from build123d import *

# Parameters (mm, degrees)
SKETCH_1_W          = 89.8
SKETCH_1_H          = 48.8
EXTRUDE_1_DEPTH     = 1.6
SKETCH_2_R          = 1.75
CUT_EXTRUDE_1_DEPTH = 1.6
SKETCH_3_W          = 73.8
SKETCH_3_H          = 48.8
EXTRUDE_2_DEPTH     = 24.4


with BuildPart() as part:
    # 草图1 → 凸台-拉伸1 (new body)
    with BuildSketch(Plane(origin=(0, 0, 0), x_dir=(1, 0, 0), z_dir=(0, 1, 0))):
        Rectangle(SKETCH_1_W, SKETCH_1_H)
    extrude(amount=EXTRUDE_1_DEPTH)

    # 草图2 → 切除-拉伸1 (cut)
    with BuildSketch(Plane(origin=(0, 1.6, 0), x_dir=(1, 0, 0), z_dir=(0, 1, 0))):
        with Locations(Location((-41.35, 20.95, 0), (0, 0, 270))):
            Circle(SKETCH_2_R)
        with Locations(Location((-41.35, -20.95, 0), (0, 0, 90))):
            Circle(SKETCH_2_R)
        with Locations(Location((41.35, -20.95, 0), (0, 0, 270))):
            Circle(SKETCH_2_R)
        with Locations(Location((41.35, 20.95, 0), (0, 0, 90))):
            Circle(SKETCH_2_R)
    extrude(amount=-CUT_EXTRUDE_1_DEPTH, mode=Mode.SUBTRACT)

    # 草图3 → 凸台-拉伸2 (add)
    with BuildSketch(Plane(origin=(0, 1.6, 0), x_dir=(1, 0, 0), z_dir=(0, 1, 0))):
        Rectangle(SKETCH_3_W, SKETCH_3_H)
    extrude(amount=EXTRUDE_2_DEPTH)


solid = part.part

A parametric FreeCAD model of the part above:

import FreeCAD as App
import Part
import Sketcher
Q = App.Units.Quantity

doc = App.newDocument("Part")
params = doc.addObject("Spreadsheet::Sheet", "Params")
for row, (alias, value) in enumerate([
    ("sketch1_width", "89.8 mm"),
    ("sketch1_height", "48.8 mm"),
    ("pad1_length", "1.6 mm"),
    ("sketch2_diameter", "3.5 mm"),
    ("pocket1_length", "1.6 mm"),
    ("sketch3_width", "73.8 mm"),
    ("sketch3_height", "48.8 mm"),
    ("pad2_length", "24.4 mm"),
], start=1):
    params.set(f"A{row}", alias)
    params.set(f"B{row}", "=" + value)
    params.setAlias(f"B{row}", alias)

body = doc.addObject("PartDesign::Body", "Body")

# Sketch on XZ plane
sketch1 = body.newObject("Sketcher::SketchObject", "Sketch")
sketch1.AttachmentSupport = (doc.getObject("XZ_Plane"), [""])
sketch1.MapMode = "FlatFace"
sketch1.addGeometry([
    Part.LineSegment(App.Vector(-45, -24, 0), App.Vector(-45, 24, 0)),
    Part.LineSegment(App.Vector(-45, 24, 0), App.Vector(45, 24, 0)),
    Part.LineSegment(App.Vector(45, 24, 0), App.Vector(45, -24, 0)),
    Part.LineSegment(App.Vector(45, -24, 0), App.Vector(-45, -24, 0)),
], False)
sketch1.addConstraint([
    Sketcher.Constraint("Coincident", 0, 2, 1, 1),
    Sketcher.Constraint("Coincident", 1, 2, 2, 1),
    Sketcher.Constraint("Coincident", 2, 2, 3, 1),
    Sketcher.Constraint("Coincident", 3, 2, 0, 1),
    Sketcher.Constraint("Vertical", 0),
    Sketcher.Constraint("Horizontal", 1),
    Sketcher.Constraint("Vertical", 2),
    Sketcher.Constraint("Horizontal", 3),
    Sketcher.Constraint("Symmetric", 0, 2, 2, 2, -1, 1),
    Sketcher.Constraint("DistanceX", 1, 1, 1, 2, Q("89.8 mm")),
    Sketcher.Constraint("DistanceY", 0, 1, 0, 2, Q("48.8 mm")),
])
sketch1.setExpression("Constraints[9]", "Params.sketch1_width")
sketch1.setExpression("Constraints[10]", "Params.sketch1_height")
pad1 = body.newObject("PartDesign::Pad", "Pad")
pad1.Profile = sketch1
pad1.setExpression("Length", "Params.pad1_length")
pad1.Reversed = True

# Sketch on XZ plane
sketch2 = body.newObject("Sketcher::SketchObject", "Sketch001")
sketch2.AttachmentSupport = (doc.getObject("XZ_Plane"), [""])
sketch2.MapMode = "FlatFace"
sketch2.AttachmentOffset = App.Placement(App.Vector(0, 0, -1.6), App.Rotation())
sketch2.addGeometry([
    Part.Circle(App.Vector(-41.4, -20.9, 0), App.Vector(0, 0, 1), 1.8),
    Part.Circle(App.Vector(-41.4, 20.9, 0), App.Vector(0, 0, 1), 1.8),
    Part.Circle(App.Vector(41.4, 20.9, 0), App.Vector(0, 0, 1), 1.8),
    Part.Circle(App.Vector(41.4, -20.9, 0), App.Vector(0, 0, 1), 1.8),
], False)
sketch2.addConstraint([
    Sketcher.Constraint("Equal", 0, 1),
    Sketcher.Constraint("Equal", 1, 2),
    Sketcher.Constraint("Equal", 2, 3),
    Sketcher.Constraint("Symmetric", 0, 3, 2, 3, -1, 1),
    Sketcher.Constraint("Symmetric", 1, 3, 3, 3, -1, 1),
    Sketcher.Constraint("Symmetric", 1, 3, 2, 3, -2),
    Sketcher.Constraint("Diameter", 0, Q("3.5 mm")),
    Sketcher.Constraint("DistanceY", 0, 3, 1, 3, Q("41.9 mm")),
    Sketcher.Constraint("DistanceX", 1, 3, 2, 3, Q("82.7 mm")),
])
sketch2.setExpression("Constraints[6]", "Params.sketch2_diameter")
pocket1 = body.newObject("PartDesign::Pocket", "Pocket")
pocket1.Profile = sketch2
pocket1.setExpression("Length", "Params.pocket1_length")
pocket1.Reversed = True

# Sketch on XZ plane
sketch3 = body.newObject("Sketcher::SketchObject", "Sketch002")
sketch3.AttachmentSupport = (doc.getObject("XZ_Plane"), [""])
sketch3.MapMode = "FlatFace"
sketch3.AttachmentOffset = App.Placement(App.Vector(0, 0, -1.6), App.Rotation())
sketch3.addGeometry([
    Part.LineSegment(App.Vector(-37, -24, 0), App.Vector(-37, 24, 0)),
    Part.LineSegment(App.Vector(-37, 24, 0), App.Vector(37, 24, 0)),
    Part.LineSegment(App.Vector(37, 24, 0), App.Vector(37, -24, 0)),
    Part.LineSegment(App.Vector(37, -24, 0), App.Vector(-37, -24, 0)),
], False)
sketch3.addConstraint([
    Sketcher.Constraint("Coincident", 0, 2, 1, 1),
    Sketcher.Constraint("Coincident", 1, 2, 2, 1),
    Sketcher.Constraint("Coincident", 2, 2, 3, 1),
    Sketcher.Constraint("Coincident", 3, 2, 0, 1),
    Sketcher.Constraint("Vertical", 0),
    Sketcher.Constraint("Horizontal", 1),
    Sketcher.Constraint("Vertical", 2),
    Sketcher.Constraint("Horizontal", 3),
    Sketcher.Constraint("Symmetric", 0, 2, 2, 2, -1, 1),
    Sketcher.Constraint("DistanceX", 1, 1, 1, 2, Q("73.8 mm")),
    Sketcher.Constraint("DistanceY", 0, 1, 0, 2, Q("48.8 mm")),
])
sketch3.setExpression("Constraints[9]", "Params.sketch3_width")
sketch3.setExpression("Constraints[10]", "Params.sketch3_height")
pad2 = body.newObject("PartDesign::Pad", "Pad001")
pad2.Profile = sketch3
pad2.setExpression("Length", "Params.pad2_length")
pad2.Reversed = True

doc.recompute()
